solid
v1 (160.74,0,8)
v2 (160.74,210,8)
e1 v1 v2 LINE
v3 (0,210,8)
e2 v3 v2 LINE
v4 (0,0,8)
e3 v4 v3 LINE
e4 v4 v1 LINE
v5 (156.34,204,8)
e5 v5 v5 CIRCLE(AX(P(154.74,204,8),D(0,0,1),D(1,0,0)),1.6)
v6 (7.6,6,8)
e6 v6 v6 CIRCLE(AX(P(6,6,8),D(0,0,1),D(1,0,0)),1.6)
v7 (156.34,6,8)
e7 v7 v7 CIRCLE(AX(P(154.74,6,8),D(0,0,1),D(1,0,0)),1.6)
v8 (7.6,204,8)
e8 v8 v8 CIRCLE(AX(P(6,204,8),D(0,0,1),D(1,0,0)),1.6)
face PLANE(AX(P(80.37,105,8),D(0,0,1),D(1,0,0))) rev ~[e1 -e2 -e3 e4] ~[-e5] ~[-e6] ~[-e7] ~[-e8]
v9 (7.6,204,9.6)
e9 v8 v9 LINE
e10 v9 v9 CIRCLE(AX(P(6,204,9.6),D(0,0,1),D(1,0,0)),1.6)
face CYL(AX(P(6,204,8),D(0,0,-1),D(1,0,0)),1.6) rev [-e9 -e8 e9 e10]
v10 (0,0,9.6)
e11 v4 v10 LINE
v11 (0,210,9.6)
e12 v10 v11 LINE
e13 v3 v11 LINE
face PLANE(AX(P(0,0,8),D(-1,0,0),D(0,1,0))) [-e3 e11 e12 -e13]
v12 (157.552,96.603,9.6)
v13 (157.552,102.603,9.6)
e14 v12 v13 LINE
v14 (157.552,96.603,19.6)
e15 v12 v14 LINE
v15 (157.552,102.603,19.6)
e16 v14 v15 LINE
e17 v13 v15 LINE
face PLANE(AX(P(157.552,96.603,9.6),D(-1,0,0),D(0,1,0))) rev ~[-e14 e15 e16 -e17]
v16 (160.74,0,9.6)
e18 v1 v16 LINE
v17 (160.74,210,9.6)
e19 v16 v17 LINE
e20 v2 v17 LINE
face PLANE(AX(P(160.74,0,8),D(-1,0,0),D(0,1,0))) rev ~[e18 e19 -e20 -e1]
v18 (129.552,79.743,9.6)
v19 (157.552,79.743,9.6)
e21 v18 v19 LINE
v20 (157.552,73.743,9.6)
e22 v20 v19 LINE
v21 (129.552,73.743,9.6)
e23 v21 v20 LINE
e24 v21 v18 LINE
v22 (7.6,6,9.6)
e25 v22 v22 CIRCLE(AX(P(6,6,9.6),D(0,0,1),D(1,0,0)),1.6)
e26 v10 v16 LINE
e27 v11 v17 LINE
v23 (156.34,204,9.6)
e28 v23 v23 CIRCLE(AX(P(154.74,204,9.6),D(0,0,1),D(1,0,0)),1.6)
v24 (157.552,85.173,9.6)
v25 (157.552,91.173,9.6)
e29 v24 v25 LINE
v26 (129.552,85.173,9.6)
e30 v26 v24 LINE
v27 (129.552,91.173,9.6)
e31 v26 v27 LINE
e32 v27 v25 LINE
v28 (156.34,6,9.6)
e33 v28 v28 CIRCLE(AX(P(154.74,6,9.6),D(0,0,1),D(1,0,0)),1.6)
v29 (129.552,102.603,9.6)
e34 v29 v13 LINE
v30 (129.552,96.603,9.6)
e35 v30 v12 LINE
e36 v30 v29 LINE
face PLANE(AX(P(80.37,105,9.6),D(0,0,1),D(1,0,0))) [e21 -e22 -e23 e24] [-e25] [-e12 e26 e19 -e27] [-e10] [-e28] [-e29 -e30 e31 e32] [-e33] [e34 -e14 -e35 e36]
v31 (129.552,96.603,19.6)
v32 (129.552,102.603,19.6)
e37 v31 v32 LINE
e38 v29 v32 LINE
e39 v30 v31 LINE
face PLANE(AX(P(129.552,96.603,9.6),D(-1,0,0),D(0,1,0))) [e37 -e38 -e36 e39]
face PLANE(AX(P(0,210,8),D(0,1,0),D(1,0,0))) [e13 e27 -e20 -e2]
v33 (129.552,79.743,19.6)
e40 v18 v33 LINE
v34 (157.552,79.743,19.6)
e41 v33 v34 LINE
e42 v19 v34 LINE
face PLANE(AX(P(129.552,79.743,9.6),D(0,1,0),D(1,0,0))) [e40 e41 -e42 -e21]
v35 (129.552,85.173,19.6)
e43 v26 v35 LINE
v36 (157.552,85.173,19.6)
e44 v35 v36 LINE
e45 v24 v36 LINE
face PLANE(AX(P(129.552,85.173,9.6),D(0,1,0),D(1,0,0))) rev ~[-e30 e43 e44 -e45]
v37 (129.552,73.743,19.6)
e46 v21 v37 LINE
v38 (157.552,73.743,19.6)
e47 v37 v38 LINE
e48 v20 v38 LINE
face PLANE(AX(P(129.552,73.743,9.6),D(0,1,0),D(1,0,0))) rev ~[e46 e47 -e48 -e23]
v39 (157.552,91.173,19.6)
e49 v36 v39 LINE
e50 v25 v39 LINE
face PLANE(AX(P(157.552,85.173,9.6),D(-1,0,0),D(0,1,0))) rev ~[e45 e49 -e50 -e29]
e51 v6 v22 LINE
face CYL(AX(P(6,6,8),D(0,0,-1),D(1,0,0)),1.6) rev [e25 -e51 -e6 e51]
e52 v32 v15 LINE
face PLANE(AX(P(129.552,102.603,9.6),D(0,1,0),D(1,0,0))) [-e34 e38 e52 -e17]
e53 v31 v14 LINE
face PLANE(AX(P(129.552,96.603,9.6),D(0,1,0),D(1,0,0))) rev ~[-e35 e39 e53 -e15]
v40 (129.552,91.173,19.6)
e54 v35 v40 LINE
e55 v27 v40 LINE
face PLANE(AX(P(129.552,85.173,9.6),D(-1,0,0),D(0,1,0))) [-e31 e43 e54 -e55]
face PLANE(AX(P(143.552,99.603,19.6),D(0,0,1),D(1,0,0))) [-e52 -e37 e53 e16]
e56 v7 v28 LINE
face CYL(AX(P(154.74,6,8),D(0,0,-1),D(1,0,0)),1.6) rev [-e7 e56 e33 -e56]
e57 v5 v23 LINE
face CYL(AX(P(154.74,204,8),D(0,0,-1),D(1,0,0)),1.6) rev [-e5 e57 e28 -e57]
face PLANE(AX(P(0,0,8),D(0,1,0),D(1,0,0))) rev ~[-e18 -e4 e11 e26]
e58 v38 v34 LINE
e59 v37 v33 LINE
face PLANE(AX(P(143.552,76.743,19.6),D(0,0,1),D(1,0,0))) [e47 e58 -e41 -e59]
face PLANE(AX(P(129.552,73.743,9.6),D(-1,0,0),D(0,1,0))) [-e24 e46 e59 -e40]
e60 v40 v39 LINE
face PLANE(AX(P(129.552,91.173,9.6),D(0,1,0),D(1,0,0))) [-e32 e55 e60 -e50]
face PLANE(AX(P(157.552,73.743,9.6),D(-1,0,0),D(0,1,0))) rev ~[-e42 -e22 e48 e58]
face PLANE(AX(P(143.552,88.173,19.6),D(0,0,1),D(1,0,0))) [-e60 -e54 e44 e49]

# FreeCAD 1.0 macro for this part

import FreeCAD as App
import Part
import Sketcher

V = App.Vector

doc = App.newDocument("Part")
body = doc.addObject("PartDesign::Body", "Body")

sketch1 = body.newObject("Sketcher::SketchObject", "Sketch")
sketch1.AttachmentSupport = (doc.getObject("XY_Plane"), [""])
sketch1.MapMode = "FlatFace"
sketch1.AttachmentOffset = App.Placement(V(0, 0, 8), App.Rotation())
sketch1.addGeometry([
    Part.LineSegment(V(0, 210, 0), V(0, 0, 0)),
    Part.LineSegment(V(0, 0, 0), V(160.7, 0, 0)),
    Part.LineSegment(V(160.7, 0, 0), V(160.7, 210, 0)),
    Part.LineSegment(V(160.7, 210, 0), V(0, 210, 0)),
    Part.Circle(V(6, 6, 0), V(0, 0, 1), 1.6),
    Part.Circle(V(154.7, 6, 0), V(0, 0, 1), 1.6),
    Part.Circle(V(6, 204, 0), V(0, 0, 1), 1.6),
    Part.Circle(V(154.7, 204, 0), V(0, 0, 1), 1.6),
], False)
sketch1.addConstraint([
    Sketcher.Constraint("Coincident", 0, 2, 1, 1),
    Sketcher.Constraint("Coincident", 1, 2, 2, 1),
    Sketcher.Constraint("Coincident", 2, 2, 3, 1),
    Sketcher.Constraint("Coincident", 3, 2, 0, 1),
    Sketcher.Constraint("Vertical", 0),
    Sketcher.Constraint("Horizontal", 1),
    Sketcher.Constraint("Vertical", 2),
    Sketcher.Constraint("Horizontal", 3),
    Sketcher.Constraint("Coincident", 0, 2, -1, 1),
    Sketcher.Constraint("Equal", 4, 5),
    Sketcher.Constraint("Equal", 5, 6),
    Sketcher.Constraint("Equal", 6, 7),
    Sketcher.Constraint("Horizontal", 4, 3, 5, 3),
    Sketcher.Constraint("Horizontal", 6, 3, 7, 3),
    Sketcher.Constraint("Vertical", 4, 3, 6, 3),
    Sketcher.Constraint("Vertical", 5, 3, 7, 3),
    Sketcher.Constraint("Diameter", 4, 3.2),
    Sketcher.Constraint("DistanceY", 0, 2, 0, 1, 210.0),
    Sketcher.Constraint("DistanceX", -1, 1, 4, 3, 6.0),
    Sketcher.Constraint("DistanceY", -1, 1, 4, 3, 6.0),
    Sketcher.Constraint("DistanceY", -1, 1, 6, 3, 204.0),
    Sketcher.Constraint("DistanceX", 5, 3, 1, 2, 6.0),
    Sketcher.Constraint("DistanceX", 1, 1, 1, 2, 160.74),
])
pad1 = body.newObject("PartDesign::Pad", "Pad")
pad1.Profile = sketch1
pad1.Length = 1.6
body2 = doc.addObject("PartDesign::Body", "Body001")
body2.AllowCompound = True

sketch2 = body2.newObject("Sketcher::SketchObject", "Sketch001")
sketch2.AttachmentSupport = (doc.getObject("XY_Plane001"), [""])
sketch2.MapMode = "FlatFace"
sketch2.AttachmentOffset = App.Placement(V(0, 0, 9.6), App.Rotation())
sketch2.addGeometry([
    Part.LineSegment(V(130, 103, 0), V(130, 97, 0)),
    Part.LineSegment(V(130, 97, 0), V(158, 97, 0)),
    Part.LineSegment(V(158, 97, 0), V(158, 103, 0)),
    Part.LineSegment(V(158, 103, 0), V(130, 103, 0)),
    Part.LineSegment(V(130, 91, 0), V(130, 85, 0)),
    Part.LineSegment(V(130, 85, 0), V(158, 85, 0)),
    Part.LineSegment(V(158, 85, 0), V(158, 91, 0)),
    Part.LineSegment(V(158, 91, 0), V(130, 91, 0)),
    Part.LineSegment(V(130, 80, 0), V(130, 74, 0)),
    Part.LineSegment(V(130, 74, 0), V(158, 74, 0)),
    Part.LineSegment(V(158, 74, 0), V(158, 80, 0)),
    Part.LineSegment(V(158, 80, 0), V(130, 80, 0)),
], False)
sketch2.addConstraint([
    Sketcher.Constraint("Coincident", 0, 2, 1, 1),
    Sketcher.Constraint("Coincident", 1, 2, 2, 1),
    Sketcher.Constraint("Coincident", 2, 2, 3, 1),
    Sketcher.Constraint("Coincident", 3, 2, 0, 1),
    Sketcher.Constraint("Coincident", 4, 2, 5, 1),
    Sketcher.Constraint("Coincident", 5, 2, 6, 1),
    Sketcher.Constraint("Coincident", 6, 2, 7, 1),
    Sketcher.Constraint("Coincident", 7, 2, 4, 1),
    Sketcher.Constraint("Coincident", 8, 2, 9, 1),
    Sketcher.Constraint("Coincident", 9, 2, 10, 1),
    Sketcher.Constraint("Coincident", 10, 2, 11, 1),
    Sketcher.Constraint("Coincident", 11, 2, 8, 1),
    Sketcher.Constraint("Vertical", 0),
    Sketcher.Constraint("Horizontal", 1),
    Sketcher.Constraint("Vertical", 2),
    Sketcher.Constraint("Horizontal", 3),
    Sketcher.Constraint("Vertical", 4),
    Sketcher.Constraint("Horizontal", 5),
    Sketcher.Constraint("Vertical", 6),
    Sketcher.Constraint("Horizontal", 7),
    Sketcher.Constraint("Vertical", 8),
    Sketcher.Constraint("Horizontal", 9),
    Sketcher.Constraint("Vertical", 10),
    Sketcher.Constraint("Horizontal", 11),
    Sketcher.Constraint("Vertical", 3, 2, 4, 2),
    Sketcher.Constraint("Vertical", 2, 2, 5, 2),
    Sketcher.Constraint("Vertical", 7, 2, 8, 2),
    Sketcher.Constraint("Vertical", 6, 2, 9, 2),
    Sketcher.Constraint("Equal", 2, 4),
    Sketcher.Constraint("Equal", 6, 8),
    Sketcher.Constraint("DistanceX", 1, 1, 1, 2, 28.0),
    Sketcher.Constraint("DistanceY", 0, 2, 0, 1, 6.0),
    Sketcher.Constraint("DistanceY", 4, 2, 0, 2, 11.43),
    Sketcher.Constraint("DistanceY", 8, 2, 4, 2, 11.43),
    Sketcher.Constraint("DistanceX", -1, 1, 0, 2, 129.552),
    Sketcher.Constraint("DistanceY", -1, 1, 0, 2, 96.603),
])
pad2 = body2.newObject("PartDesign::Pad", "Pad001")
pad2.Profile = sketch2
pad2.Length = 10
doc.recompute()

boolean = body2.newObject("PartDesign::Boolean", "Boolean")
boolean.Type = "Fuse"
boolean.addObjects([body])

doc.recompute()
